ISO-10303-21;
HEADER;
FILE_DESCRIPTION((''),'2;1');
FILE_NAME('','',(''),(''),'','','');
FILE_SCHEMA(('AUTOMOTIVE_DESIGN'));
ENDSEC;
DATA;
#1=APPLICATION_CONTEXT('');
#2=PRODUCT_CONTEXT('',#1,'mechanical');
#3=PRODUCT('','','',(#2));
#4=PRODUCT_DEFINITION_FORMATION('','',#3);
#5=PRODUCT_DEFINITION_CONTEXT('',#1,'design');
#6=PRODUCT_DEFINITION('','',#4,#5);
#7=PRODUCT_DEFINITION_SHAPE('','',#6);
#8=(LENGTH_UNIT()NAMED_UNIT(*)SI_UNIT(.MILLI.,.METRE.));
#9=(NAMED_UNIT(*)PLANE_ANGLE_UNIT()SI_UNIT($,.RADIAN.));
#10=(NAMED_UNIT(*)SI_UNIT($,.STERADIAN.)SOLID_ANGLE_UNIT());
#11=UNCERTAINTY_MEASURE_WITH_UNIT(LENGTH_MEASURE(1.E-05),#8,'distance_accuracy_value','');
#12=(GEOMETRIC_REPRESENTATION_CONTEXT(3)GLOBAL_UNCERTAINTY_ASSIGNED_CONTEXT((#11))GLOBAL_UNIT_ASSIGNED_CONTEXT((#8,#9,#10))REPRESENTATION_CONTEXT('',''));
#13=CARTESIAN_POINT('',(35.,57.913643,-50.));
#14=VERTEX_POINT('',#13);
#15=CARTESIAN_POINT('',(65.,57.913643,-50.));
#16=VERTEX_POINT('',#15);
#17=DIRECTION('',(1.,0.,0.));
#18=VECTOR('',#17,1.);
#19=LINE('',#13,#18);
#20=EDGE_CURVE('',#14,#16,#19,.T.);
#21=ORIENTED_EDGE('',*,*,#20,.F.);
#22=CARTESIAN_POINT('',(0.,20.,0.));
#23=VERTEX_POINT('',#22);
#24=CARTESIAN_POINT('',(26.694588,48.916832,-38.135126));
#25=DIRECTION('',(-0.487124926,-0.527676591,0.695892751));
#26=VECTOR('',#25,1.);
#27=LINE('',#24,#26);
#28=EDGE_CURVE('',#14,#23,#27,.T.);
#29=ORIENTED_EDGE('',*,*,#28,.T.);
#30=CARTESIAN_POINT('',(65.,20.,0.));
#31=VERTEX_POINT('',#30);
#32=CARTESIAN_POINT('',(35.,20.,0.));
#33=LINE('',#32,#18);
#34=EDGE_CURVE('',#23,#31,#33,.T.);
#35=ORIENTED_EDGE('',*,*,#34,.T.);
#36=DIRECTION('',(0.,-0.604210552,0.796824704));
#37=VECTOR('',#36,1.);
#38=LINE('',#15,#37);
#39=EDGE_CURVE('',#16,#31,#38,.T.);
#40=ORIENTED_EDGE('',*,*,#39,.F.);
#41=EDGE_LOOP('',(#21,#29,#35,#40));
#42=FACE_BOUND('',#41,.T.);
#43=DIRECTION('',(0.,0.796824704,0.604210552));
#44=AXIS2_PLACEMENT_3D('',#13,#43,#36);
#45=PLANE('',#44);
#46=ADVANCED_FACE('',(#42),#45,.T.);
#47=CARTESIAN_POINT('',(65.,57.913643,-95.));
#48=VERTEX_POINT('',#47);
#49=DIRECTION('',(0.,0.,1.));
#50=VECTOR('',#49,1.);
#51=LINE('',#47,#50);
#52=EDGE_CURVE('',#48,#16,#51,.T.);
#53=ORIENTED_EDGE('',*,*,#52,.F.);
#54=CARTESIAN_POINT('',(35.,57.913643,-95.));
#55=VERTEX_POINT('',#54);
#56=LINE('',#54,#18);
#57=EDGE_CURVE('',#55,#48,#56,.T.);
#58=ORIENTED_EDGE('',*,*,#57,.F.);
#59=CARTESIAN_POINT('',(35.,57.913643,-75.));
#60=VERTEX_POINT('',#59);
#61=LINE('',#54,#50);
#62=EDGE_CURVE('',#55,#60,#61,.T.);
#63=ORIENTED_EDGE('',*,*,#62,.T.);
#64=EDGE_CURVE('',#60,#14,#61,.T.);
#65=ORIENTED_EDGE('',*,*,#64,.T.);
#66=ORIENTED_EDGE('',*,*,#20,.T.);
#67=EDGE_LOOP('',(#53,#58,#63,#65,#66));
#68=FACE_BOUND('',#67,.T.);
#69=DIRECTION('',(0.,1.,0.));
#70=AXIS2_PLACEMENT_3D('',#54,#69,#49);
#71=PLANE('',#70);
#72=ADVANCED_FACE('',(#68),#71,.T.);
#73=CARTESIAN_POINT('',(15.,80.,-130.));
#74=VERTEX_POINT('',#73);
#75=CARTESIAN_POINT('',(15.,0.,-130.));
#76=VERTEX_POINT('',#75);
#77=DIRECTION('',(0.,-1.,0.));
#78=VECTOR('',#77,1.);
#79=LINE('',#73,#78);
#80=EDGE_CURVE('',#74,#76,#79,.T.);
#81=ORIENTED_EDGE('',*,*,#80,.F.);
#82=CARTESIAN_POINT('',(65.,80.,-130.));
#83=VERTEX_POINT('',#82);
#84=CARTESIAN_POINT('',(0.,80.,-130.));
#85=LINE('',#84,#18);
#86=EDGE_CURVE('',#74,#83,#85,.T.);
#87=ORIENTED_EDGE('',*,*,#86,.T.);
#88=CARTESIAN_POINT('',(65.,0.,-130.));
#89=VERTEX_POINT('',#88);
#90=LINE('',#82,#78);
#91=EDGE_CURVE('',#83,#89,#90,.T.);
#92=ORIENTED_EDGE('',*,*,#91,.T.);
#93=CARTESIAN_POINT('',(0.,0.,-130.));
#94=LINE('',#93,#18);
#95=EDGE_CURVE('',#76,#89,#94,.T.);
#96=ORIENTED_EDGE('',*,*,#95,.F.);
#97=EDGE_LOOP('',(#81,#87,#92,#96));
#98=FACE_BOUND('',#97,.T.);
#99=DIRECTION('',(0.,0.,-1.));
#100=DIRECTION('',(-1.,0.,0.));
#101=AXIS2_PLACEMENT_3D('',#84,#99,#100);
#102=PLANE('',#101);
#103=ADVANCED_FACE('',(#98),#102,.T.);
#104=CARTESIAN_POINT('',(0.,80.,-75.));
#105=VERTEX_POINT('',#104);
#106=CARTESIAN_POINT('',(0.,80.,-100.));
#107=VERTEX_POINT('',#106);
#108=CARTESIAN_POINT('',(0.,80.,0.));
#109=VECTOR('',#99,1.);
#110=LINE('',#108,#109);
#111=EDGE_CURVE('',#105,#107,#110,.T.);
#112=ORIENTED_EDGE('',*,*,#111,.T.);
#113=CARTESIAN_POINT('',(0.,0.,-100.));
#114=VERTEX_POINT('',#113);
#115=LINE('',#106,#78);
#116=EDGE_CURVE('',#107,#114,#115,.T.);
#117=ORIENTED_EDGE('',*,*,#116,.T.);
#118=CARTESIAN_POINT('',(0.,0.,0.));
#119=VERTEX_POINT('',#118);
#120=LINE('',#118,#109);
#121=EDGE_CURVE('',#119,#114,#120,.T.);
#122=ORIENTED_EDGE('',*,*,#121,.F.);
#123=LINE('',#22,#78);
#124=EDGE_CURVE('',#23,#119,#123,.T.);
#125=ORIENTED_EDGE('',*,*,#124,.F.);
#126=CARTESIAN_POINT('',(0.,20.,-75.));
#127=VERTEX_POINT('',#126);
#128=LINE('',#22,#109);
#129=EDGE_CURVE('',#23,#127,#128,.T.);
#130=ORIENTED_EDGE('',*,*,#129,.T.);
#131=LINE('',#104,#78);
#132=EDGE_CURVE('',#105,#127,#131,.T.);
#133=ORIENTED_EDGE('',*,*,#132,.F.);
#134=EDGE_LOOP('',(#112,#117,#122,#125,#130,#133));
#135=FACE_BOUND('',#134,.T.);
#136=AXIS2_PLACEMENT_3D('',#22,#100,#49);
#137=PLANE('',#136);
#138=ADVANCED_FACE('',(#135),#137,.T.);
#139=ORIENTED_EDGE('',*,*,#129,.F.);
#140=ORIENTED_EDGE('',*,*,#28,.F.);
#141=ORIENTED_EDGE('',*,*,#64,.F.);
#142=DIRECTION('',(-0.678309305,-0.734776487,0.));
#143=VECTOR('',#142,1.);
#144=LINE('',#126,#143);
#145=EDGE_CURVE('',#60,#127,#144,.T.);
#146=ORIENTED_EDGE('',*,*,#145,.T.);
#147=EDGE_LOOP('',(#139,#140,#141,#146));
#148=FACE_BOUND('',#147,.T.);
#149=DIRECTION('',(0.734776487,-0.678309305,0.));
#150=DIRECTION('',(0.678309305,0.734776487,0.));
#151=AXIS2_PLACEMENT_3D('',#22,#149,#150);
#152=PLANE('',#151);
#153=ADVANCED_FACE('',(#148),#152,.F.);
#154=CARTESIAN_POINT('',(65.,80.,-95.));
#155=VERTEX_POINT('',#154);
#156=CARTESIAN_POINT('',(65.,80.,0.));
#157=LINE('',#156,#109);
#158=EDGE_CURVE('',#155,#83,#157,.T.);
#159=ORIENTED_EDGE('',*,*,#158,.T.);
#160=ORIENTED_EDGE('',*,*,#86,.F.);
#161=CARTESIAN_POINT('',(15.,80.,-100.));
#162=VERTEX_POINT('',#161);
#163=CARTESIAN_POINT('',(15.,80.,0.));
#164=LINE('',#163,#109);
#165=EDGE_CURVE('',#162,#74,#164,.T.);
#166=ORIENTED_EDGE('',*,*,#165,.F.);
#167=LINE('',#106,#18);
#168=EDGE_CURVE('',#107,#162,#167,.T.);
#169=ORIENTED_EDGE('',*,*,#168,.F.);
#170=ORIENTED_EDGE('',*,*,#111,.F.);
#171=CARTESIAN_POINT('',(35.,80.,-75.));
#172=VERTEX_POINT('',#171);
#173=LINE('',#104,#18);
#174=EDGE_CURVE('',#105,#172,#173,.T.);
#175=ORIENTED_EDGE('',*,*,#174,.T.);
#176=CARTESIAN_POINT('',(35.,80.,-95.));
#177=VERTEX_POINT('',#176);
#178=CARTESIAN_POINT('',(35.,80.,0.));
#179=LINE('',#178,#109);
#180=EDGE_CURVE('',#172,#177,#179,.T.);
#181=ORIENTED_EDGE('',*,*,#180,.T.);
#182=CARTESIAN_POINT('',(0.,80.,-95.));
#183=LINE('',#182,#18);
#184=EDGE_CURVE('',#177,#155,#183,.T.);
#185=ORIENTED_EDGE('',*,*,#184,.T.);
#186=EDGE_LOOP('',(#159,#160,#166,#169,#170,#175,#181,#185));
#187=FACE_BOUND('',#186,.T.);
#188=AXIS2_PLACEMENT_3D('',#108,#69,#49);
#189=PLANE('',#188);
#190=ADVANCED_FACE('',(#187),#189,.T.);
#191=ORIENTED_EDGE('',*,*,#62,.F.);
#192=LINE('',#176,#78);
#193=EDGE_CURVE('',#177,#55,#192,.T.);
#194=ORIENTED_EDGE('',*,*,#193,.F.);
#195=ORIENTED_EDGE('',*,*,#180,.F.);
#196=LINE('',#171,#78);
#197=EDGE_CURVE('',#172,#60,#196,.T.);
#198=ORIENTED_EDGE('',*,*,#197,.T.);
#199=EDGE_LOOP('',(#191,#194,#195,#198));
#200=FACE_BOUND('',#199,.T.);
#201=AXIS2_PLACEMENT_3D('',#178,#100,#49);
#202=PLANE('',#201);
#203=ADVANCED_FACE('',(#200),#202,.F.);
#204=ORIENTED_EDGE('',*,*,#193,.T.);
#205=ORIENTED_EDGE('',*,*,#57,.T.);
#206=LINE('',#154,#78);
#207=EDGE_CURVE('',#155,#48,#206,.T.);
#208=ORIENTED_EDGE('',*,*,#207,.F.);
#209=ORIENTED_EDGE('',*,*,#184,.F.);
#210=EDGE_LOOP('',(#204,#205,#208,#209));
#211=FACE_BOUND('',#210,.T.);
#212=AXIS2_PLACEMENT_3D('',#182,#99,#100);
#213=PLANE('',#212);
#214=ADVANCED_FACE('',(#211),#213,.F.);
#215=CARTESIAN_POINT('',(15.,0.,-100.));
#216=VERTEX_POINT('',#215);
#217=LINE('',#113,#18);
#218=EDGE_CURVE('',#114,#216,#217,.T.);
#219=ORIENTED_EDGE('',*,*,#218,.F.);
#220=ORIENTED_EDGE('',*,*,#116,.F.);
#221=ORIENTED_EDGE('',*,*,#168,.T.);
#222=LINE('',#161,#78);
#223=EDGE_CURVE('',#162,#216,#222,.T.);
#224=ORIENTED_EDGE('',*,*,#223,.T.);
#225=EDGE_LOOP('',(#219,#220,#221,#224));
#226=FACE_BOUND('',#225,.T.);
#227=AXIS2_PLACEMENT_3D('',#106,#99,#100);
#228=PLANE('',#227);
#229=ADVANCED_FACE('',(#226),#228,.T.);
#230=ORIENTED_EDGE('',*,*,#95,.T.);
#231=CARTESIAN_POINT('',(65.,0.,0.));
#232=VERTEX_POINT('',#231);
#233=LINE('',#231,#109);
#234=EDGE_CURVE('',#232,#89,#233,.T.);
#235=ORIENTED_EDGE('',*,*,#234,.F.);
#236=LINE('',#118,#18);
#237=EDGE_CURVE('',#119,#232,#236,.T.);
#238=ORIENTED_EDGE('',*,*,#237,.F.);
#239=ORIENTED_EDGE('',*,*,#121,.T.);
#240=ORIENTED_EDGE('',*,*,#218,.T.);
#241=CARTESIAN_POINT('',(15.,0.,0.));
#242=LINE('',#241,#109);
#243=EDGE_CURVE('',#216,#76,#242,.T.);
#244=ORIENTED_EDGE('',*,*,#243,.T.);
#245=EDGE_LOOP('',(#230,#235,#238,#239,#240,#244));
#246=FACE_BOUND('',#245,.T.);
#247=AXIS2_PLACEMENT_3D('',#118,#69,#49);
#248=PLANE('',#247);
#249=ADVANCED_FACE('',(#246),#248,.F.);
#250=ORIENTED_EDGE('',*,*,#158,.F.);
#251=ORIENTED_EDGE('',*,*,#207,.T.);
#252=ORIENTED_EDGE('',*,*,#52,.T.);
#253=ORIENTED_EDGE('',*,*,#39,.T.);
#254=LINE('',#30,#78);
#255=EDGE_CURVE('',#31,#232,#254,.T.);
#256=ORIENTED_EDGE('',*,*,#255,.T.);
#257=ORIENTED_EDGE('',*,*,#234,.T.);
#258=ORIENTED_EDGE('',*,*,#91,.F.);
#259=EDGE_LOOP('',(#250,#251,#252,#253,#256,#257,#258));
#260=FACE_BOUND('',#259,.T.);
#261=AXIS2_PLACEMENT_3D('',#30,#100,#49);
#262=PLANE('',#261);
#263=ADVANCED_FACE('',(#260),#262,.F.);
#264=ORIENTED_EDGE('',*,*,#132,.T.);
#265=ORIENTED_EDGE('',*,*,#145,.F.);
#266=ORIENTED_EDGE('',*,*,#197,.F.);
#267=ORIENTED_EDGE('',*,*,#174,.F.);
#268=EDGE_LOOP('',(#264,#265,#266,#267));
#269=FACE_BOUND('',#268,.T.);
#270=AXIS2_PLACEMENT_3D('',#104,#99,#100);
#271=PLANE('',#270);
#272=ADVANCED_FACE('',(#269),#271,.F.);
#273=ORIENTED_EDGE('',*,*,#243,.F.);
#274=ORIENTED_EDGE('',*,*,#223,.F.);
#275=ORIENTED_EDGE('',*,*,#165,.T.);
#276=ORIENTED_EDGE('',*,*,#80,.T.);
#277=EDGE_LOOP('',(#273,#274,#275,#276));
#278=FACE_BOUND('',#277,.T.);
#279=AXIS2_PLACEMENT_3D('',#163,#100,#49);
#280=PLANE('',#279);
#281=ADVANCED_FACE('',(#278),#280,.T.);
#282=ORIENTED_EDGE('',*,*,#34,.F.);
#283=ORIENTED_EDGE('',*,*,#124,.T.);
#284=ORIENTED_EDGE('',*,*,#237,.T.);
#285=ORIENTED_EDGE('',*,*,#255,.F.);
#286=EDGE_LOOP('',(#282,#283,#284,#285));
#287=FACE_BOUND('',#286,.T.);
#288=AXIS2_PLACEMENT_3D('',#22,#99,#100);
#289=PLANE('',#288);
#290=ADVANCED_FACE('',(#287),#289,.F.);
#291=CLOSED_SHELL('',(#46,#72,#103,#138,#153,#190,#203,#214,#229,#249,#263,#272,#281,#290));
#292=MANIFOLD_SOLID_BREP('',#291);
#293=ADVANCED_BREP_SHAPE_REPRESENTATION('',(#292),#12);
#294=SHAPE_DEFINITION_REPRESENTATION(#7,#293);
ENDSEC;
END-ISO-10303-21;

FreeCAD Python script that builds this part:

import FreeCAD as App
import Part
import Sketcher

V = App.Vector
Q = App.Units.Quantity

doc = App.newDocument("Part")
body = doc.addObject("PartDesign::Body", "Body")

sketch1 = body.newObject("Sketcher::SketchObject", "Sketch")
sketch1.AttachmentSupport = (doc.getObject("XZ_Plane"), [""])
sketch1.MapMode = "FlatFace"
sketch1.addGeometry([
    Part.LineSegment(V(35, -75, 0), V(0, -75, 0)),
    Part.LineSegment(V(0, -75, 0), V(0, 0, 0)),
    Part.LineSegment(V(0, 0, 0), V(65, 0, 0)),
    Part.LineSegment(V(65, 0, 0), V(65, -95, 0)),
    Part.LineSegment(V(65, -95, 0), V(35, -95, 0)),
    Part.LineSegment(V(35, -95, 0), V(35, -75, 0)),
], False)
sketch1.addConstraint([
    Sketcher.Constraint("Coincident", 0, 2, 1, 1),
    Sketcher.Constraint("Coincident", 1, 2, 2, 1),
    Sketcher.Constraint("Coincident", 2, 2, 3, 1),
    Sketcher.Constraint("Coincident", 3, 2, 4, 1),
    Sketcher.Constraint("Coincident", 4, 2, 5, 1),
    Sketcher.Constraint("Coincident", 5, 2, 0, 1),
    Sketcher.Constraint("Horizontal", 0),
    Sketcher.Constraint("Vertical", 1),
    Sketcher.Constraint("Horizontal", 2),
    Sketcher.Constraint("Vertical", 3),
    Sketcher.Constraint("Horizontal", 4),
    Sketcher.Constraint("Vertical", 5),
    Sketcher.Constraint("Coincident", 1, 2, -1, 1),
    Sketcher.Constraint("DistanceX", 0, 2, 0, 1, Q("35 mm")),
    Sketcher.Constraint("DistanceX", 2, 1, 2, 2, Q("65 mm")),
    Sketcher.Constraint("DistanceY", 1, 1, 1, 2, Q("75 mm")),
    Sketcher.Constraint("DistanceY", 3, 2, 3, 1, Q("95 mm")),
])
pad1 = body.newObject("PartDesign::Pad", "Pad")
pad1.Profile = sketch1
pad1.Length = 20
pad1.Reversed = True

sketch2 = body.newObject("Sketcher::SketchObject", "Sketch001")
sketch2.AttachmentSupport = (doc.getObject("XZ_Plane"), [""])
sketch2.MapMode = "FlatFace"
sketch2.addGeometry([
    Part.LineSegment(V(15, -130, 0), V(15, -100, 0)),
    Part.LineSegment(V(15, -100, 0), V(0, -100, 0)),
    Part.LineSegment(V(0, -100, 0), V(0, -75, 0)),
    Part.LineSegment(V(0, -75, 0), V(35, -75, 0)),
    Part.LineSegment(V(35, -75, 0), V(35, -95, 0)),
    Part.LineSegment(V(35, -95, 0), V(65, -95, 0)),
    Part.LineSegment(V(65, -95, 0), V(65, -130, 0)),
    Part.LineSegment(V(65, -130, 0), V(15, -130, 0)),
], False)
sketch2.addConstraint([
    Sketcher.Constraint("Coincident", 0, 2, 1, 1),
    Sketcher.Constraint("Coincident", 1, 2, 2, 1),
    Sketcher.Constraint("Coincident", 2, 2, 3, 1),
    Sketcher.Constraint("Coincident", 3, 2, 4, 1),
    Sketcher.Constraint("Coincident", 4, 2, 5, 1),
    Sketcher.Constraint("Coincident", 5, 2, 6, 1),
    Sketcher.Constraint("Coincident", 6, 2, 7, 1),
    Sketcher.Constraint("Coincident", 7, 2, 0, 1),
    Sketcher.Constraint("Vertical", 0),
    Sketcher.Constraint("Horizontal", 1),
    Sketcher.Constraint("Vertical", 2),
    Sketcher.Constraint("Horizontal", 3),
    Sketcher.Constraint("Vertical", 4),
    Sketcher.Constraint("Horizontal", 5),
    Sketcher.Constraint("Vertical", 6),
    Sketcher.Constraint("Horizontal", 7),
    Sketcher.Constraint("PointOnObject", 1, 2, -2),
    Sketcher.Constraint("Equal", 5, 0),
    Sketcher.Constraint("Equal", 3, 6),
    Sketcher.Constraint("DistanceX", 1, 2, 1, 1, Q("15 mm")),
    Sketcher.Constraint("DistanceX", 3, 1, 3, 2, Q("35 mm")),
    Sketcher.Constraint("DistanceX", 5, 1, 5, 2, Q("30 mm")),
    Sketcher.Constraint("DistanceY", 2, 1, 2, 2, Q("25 mm")),
    Sketcher.Constraint("DistanceY", 0, 2, -1, 1, Q("100 mm")),
])
pad2 = body.newObject("PartDesign::Pad", "Pad001")
pad2.Profile = sketch2
pad2.Length = 80
pad2.Reversed = True

sketch3 = body.newObject("Sketcher::SketchObject", "Sketch002")
sketch3.AttachmentSupport = (doc.getObject("YZ_Plane"), [""])
sketch3.MapMode = "FlatFace"
sketch3.AttachmentOffset = App.Placement(V(0, 0, 65), App.Rotation())
sketch3.addGeometry([
    Part.LineSegment(V(58, -95, 0), V(58, -50, 0)),
    Part.LineSegment(V(58, -50, 0), V(20, 0, 0)),
    Part.LineSegment(V(20, 0, 0), V(20, -95, 0)),
    Part.LineSegment(V(20, -95, 0), V(58, -95, 0)),
], False)
sketch3.addConstraint([
    Sketcher.Constraint("Coincident", 0, 2, 1, 1),
    Sketcher.Constraint("Coincident", 1, 2, 2, 1),
    Sketcher.Constraint("Coincident", 2, 2, 3, 1),
    Sketcher.Constraint("Coincident", 3, 2, 0, 1),
    Sketcher.Constraint("Vertical", 0),
    Sketcher.Constraint("Vertical", 2),
    Sketcher.Constraint("Horizontal", 3),
    Sketcher.Constraint("PointOnObject", 1, 2, -1),
    Sketcher.Constraint("DistanceY", 0, 1, 0, 2, Q("45 mm")),
    Sketcher.Constraint("DistanceY", 2, 2, 2, 1, Q("95 mm")),
    Sketcher.Constraint("DistanceX", -1, 1, 1, 2, Q("20 mm")),
    Sketcher.Constraint("Distance", 1, Q("62.749059 mm")),
])
pad3 = body.newObject("PartDesign::Pad", "Pad002")
pad3.Profile = sketch3
pad3.Length = 30
pad3.Reversed = True

sketch4 = body.newObject("Sketcher::SketchObject", "Sketch003")
sketch4.AttachmentSupport = (doc.getObject("XY_Plane"), [""])
sketch4.MapMode = "FlatFace"
sketch4.AttachmentOffset = App.Placement(V(0, 0, -75), App.Rotation())
sketch4.addGeometry([
    Part.LineSegment(V(35, 58, 0), V(0, 20, 0)),
    Part.LineSegment(V(0, 20, 0), V(35, 20, 0)),
    Part.LineSegment(V(35, 20, 0), V(35, 58, 0)),
], False)
sketch4.addConstraint([
    Sketcher.Constraint("Coincident", 0, 2, 1, 1),
    Sketcher.Constraint("Coincident", 1, 2, 2, 1),
    Sketcher.Constraint("Coincident", 2, 2, 0, 1),
    Sketcher.Constraint("Horizontal", 1),
    Sketcher.Constraint("Vertical", 2),
    Sketcher.Constraint("PointOnObject", 0, 2, -2),
    Sketcher.Constraint("DistanceX", 1, 1, 1, 2, Q("35 mm")),
    Sketcher.Constraint("DistanceY", -1, 1, 0, 2, Q("20 mm")),
    Sketcher.Constraint("Distance", 0, Q("51.598879 mm")),
])
pad4 = body.newObject("PartDesign::Pad", "Pad003")
pad4.Profile = sketch4
pad4.Length = 75

sketch5 = body.newObject("Sketcher::SketchObject", "Sketch004")
sketch5.AttachmentSupport = (doc.getObject("YZ_Plane"), [""])
sketch5.MapMode = "FlatFace"
sketch5.AttachmentOffset = App.Placement(V(0, 0, 35), App.Rotation())
sketch5.addGeometry([
    Part.LineSegment(V(58, -50, 0), V(58, 0, 0)),
    Part.LineSegment(V(58, 0, 0), V(20, 0, 0)),
    Part.LineSegment(V(20, 0, 0), V(58, -50, 0)),
], False)
sketch5.addConstraint([
    Sketcher.Constraint("Coincident", 0, 2, 1, 1),
    Sketcher.Constraint("Coincident", 1, 2, 2, 1),
    Sketcher.Constraint("Coincident", 2, 2, 0, 1),
    Sketcher.Constraint("Vertical", 0),
    Sketcher.Constraint("Horizontal", 1),
    Sketcher.Constraint("PointOnObject", 0, 2, -1),
    Sketcher.Constraint("DistanceY", 0, 1, 0, 2, Q("50 mm")),
    Sketcher.Constraint("DistanceX", -1, 1, 1, 2, Q("20 mm")),
    Sketcher.Constraint("Distance", 2, Q("62.749059 mm")),
])
pocket1 = body.newObject("PartDesign::Pocket", "Pocket")
pocket1.Profile = sketch5
pocket1.Length = 35

doc.recompute()
